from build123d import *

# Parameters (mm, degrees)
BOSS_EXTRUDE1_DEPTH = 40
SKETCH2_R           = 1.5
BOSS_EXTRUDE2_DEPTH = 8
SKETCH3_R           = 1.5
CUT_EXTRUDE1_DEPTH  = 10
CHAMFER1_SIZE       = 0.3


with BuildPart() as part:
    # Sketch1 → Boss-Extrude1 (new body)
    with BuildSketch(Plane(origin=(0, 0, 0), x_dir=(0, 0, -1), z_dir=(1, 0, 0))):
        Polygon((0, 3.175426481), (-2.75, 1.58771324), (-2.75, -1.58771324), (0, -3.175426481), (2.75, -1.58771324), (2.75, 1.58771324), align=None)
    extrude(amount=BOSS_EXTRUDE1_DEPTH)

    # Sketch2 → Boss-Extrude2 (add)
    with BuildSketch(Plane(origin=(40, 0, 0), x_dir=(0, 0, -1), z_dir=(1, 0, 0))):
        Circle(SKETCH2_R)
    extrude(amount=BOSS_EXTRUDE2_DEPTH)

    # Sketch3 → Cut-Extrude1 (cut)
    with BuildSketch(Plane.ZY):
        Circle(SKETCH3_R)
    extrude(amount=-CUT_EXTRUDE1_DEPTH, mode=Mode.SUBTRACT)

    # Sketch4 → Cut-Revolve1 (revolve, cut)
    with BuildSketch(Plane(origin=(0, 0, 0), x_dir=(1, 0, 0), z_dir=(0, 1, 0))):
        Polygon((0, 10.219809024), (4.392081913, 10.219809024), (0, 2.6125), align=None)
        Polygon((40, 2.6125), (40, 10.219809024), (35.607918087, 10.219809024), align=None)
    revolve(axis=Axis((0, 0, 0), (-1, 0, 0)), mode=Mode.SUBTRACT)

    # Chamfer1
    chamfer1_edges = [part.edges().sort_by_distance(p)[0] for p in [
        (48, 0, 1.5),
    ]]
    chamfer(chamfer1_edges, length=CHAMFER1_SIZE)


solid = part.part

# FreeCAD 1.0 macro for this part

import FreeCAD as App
import Part
import Sketcher

V = App.Vector
Q = App.Units.Quantity


def edges_at(feature, points):
    """Names of the edges that pass closest to the given points."""
    edges = feature.Shape.Edges
    near = lambda p: min(range(len(edges)), key=lambda i: edges[i].distToShape(Part.Vertex(*p))[0])
    return sorted({f"Edge{near(p) + 1}" for p in points})


def add_polygon(sketch, points):
    """Adds a closed chain of lines whose ends are joined by coincident constraints."""
    first, n = sketch.GeometryCount, len(points)
    for a, b in zip(points, points[1:] + points[:1]):
        sketch.addGeometry(Part.LineSegment(App.Vector(*a, 0), App.Vector(*b, 0)), False)
    for i in range(n):
        sketch.addConstraint(Sketcher.Constraint("Coincident", first + i, 2, first + (i + 1) % n, 1))

doc = App.newDocument("Part")
body = doc.addObject("PartDesign::Body", "Body")

# Sketch on YZ plane
sketch1 = body.newObject("Sketcher::SketchObject", "Sketch")
sketch1.AttachmentSupport = (doc.getObject("YZ_Plane"), [""])
sketch1.MapMode = "FlatFace"
add_polygon(sketch1, [(3.175426, 0), (1.587713, 2.75), (-1.587713, 2.75), (-3.175426, 0), (-1.587713, -2.75), (1.587713, -2.75)])  # lines 0-5
sketch1.addConstraint(Sketcher.Constraint("Horizontal", 1))
sketch1.addConstraint(Sketcher.Constraint("Horizontal", 4))
sketch1.addConstraint(Sketcher.Constraint("Symmetric", 0, 2, 3, 2, -1, 1))
sketch1.addConstraint(Sketcher.Constraint("Symmetric", 2, 2, 5, 2, -1, 1))
sketch1.addConstraint(Sketcher.Constraint("PointOnObject", 2, 2, -1))
sketch1.addConstraint(Sketcher.Constraint("Parallel", 2, 5))
sketch1.addConstraint(Sketcher.Constraint("Vertical", 1, 2, 3, 2))
sketch1.addConstraint(Sketcher.Constraint("Angle", 0, Q("120 deg")))
sketch1.addConstraint(Sketcher.Constraint("DistanceY", 3, 2, 1, 2, Q("5.5 mm")))
sketch1.addConstraint(Sketcher.Constraint("DistanceX", 1, 2, 1, 1, Q("3.175426 mm")))
pad1 = body.newObject("PartDesign::Pad", "Pad")
pad1.Profile = sketch1
pad1.Length = 40

# Sketch on YZ plane
sketch2 = body.newObject("Sketcher::SketchObject", "Sketch001")
sketch2.AttachmentSupport = (doc.getObject("YZ_Plane"), [""])
sketch2.MapMode = "FlatFace"
sketch2.AttachmentOffset = App.Placement(V(0, 0, 40), App.Rotation())
sketch2.addGeometry(Part.Circle(V(0, 0, 0), V(0, 0, 1), 1.5), False)
sketch2.addConstraint(Sketcher.Constraint("Coincident", 0, 3, -1, 1))
sketch2.addConstraint(Sketcher.Constraint("Diameter", 0, Q("3 mm")))
pad2 = body.newObject("PartDesign::Pad", "Pad001")
pad2.Profile = sketch2
pad2.Length = 8

# Sketch on YZ plane
sketch3 = body.newObject("Sketcher::SketchObject", "Sketch002")
sketch3.AttachmentSupport = (doc.getObject("YZ_Plane"), [""])
sketch3.MapMode = "FlatFace"
sketch3.addGeometry(Part.Circle(V(0, 0, 0), V(0, 0, 1), 1.5), False)
sketch3.addConstraint(Sketcher.Constraint("Coincident", 0, 3, -1, 1))
sketch3.addConstraint(Sketcher.Constraint("Diameter", 0, Q("3 mm")))
pocket1 = body.newObject("PartDesign::Pocket", "Pocket")
pocket1.Profile = sketch3
pocket1.Length = 10
pocket1.Reversed = True

# Sketch on XZ plane
sketch4 = body.newObject("Sketcher::SketchObject", "Sketch003")
sketch4.AttachmentSupport = (doc.getObject("XZ_Plane"), [""])
sketch4.MapMode = "FlatFace"
add_polygon(sketch4, [(4.392082, -10.219809), (0, -10.219809), (0, -2.6125)])  # lines 0-2
add_polygon(sketch4, [(40, -2.6125), (40, -10.219809), (35.607918, -10.219809)])  # lines 3-5
sketch4.addConstraint(Sketcher.Constraint("Horizontal", 0))
sketch4.addConstraint(Sketcher.Constraint("Vertical", 1))
sketch4.addConstraint(Sketcher.Constraint("Vertical", 3))
sketch4.addConstraint(Sketcher.Constraint("Horizontal", 4))
sketch4.addConstraint(Sketcher.Constraint("PointOnObject", 0, 2, -2))
sketch4.addConstraint(Sketcher.Constraint("Horizontal", 2, 2, 3, 2))
sketch4.addConstraint(Sketcher.Constraint("Horizontal", 1, 2, 5, 2))
sketch4.addConstraint(Sketcher.Constraint("Equal", 0, 4))
sketch4.addConstraint(Sketcher.Constraint("Angle", 2, Q("-60 deg")))
sketch4.addConstraint(Sketcher.Constraint("DistanceX", -1, 1, 3, 2, Q("40 mm")))
sketch4.addConstraint(Sketcher.Constraint("DistanceX", 0, 2, 0, 1, Q("4.392082 mm")))
sketch4.addConstraint(Sketcher.Constraint("DistanceY", 1, 2, -1, 1, Q("2.6125 mm")))
groove = body.newObject("PartDesign::Groove", "Groove")
groove.Profile = sketch4
groove.ReferenceAxis = (sketch4, ["H_Axis"])
groove.Angle = 360
doc.recompute()

chamfer = body.newObject("PartDesign::Chamfer", "Chamfer")
chamfer.Base = (groove, edges_at(groove, [(48, 0, 1.5)]))
chamfer.Size = 0.3

doc.recompute()
